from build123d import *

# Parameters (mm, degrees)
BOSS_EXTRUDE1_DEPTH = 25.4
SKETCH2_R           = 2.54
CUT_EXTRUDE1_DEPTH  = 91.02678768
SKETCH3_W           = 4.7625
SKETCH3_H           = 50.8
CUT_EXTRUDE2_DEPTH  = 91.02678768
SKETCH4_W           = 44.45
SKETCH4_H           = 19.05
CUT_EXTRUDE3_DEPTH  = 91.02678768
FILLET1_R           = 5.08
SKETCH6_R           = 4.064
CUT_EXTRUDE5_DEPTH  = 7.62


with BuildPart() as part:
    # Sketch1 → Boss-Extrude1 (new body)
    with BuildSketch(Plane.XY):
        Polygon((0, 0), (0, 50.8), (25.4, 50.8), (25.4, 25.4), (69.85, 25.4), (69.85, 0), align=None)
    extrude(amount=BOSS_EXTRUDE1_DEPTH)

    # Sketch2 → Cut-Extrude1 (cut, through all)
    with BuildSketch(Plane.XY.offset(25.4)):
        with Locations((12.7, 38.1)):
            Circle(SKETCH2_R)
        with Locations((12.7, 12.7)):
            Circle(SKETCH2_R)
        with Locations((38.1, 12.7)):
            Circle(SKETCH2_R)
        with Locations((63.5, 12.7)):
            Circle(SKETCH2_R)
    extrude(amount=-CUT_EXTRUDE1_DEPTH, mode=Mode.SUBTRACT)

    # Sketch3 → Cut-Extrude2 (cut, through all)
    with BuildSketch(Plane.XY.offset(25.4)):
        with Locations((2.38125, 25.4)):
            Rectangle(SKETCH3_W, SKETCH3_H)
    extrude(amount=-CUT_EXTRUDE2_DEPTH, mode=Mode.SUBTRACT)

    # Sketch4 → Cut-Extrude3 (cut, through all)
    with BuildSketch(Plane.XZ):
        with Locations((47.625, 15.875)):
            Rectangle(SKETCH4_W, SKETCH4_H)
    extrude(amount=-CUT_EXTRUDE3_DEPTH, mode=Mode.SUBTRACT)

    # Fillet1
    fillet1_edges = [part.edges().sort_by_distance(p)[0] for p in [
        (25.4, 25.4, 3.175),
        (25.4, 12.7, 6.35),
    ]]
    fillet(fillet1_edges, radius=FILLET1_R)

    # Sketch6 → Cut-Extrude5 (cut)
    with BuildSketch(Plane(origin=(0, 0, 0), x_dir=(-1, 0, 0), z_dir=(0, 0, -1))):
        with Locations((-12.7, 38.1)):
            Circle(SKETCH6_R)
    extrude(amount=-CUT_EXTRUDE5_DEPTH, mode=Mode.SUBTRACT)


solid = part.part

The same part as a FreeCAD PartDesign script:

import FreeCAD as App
import Part
import Sketcher
Q = App.Units.Quantity


def edges_at(feature, points):
    """Names of the edges that pass closest to the given points."""
    edges = feature.Shape.Edges
    near = lambda p: min(range(len(edges)), key=lambda i: edges[i].distToShape(Part.Vertex(*p))[0])
    return sorted({f"Edge{near(p) + 1}" for p in points})


def add_polygon(sketch, points):
    """Adds a closed chain of lines whose ends are joined by coincident constraints."""
    first, n = sketch.GeometryCount, len(points)
    for a, b in zip(points, points[1:] + points[:1]):
        sketch.addGeometry(Part.LineSegment(App.Vector(*a, 0), App.Vector(*b, 0)), False)
    for i in range(n):
        sketch.addConstraint(Sketcher.Constraint("Coincident", first + i, 2, first + (i + 1) % n, 1))

doc = App.newDocument("Part")
body = doc.addObject("PartDesign::Body", "Body")

# Sketch on XY plane
sketch1 = body.newObject("Sketcher::SketchObject", "Sketch")
sketch1.AttachmentSupport = (doc.getObject("XY_Plane"), [""])
sketch1.MapMode = "FlatFace"
add_polygon(sketch1, [(0, 51), (0, 0), (70, 0), (70, 25), (25, 25), (25, 51)])  # lines 0-5
sketch1.addConstraint([
    Sketcher.Constraint("Vertical", 0),
    Sketcher.Constraint("Horizontal", 1),
    Sketcher.Constraint("Vertical", 2),
    Sketcher.Constraint("Horizontal", 3),
    Sketcher.Constraint("Vertical", 4),
    Sketcher.Constraint("Horizontal", 5),
    Sketcher.Constraint("Coincident", 0, 2, -1, 1),
    Sketcher.Constraint("Equal", 5, 2),
    Sketcher.Constraint("Equal", 2, 4),
    Sketcher.Constraint("DistanceX", 5, 2, 5, 1, Q("1 in")),
    Sketcher.Constraint("DistanceX", 1, 1, 1, 2, Q("2.75 in")),
])
pad1 = body.newObject("PartDesign::Pad", "Pad")
pad1.Profile = sketch1
pad1.Length = Q("1 in")

# Sketch on XY plane
sketch2 = body.newObject("Sketcher::SketchObject", "Sketch001")
sketch2.AttachmentSupport = (doc.getObject("XY_Plane"), [""])
sketch2.MapMode = "FlatFace"
sketch2.AttachmentOffset = App.Placement(App.Vector(0, 0, 1 * 25.4), App.Rotation())
sketch2.addGeometry([
    Part.Circle(App.Vector(12.7, 38.1, 0), App.Vector(0, 0, 1), 2.5),
    Part.Circle(App.Vector(12.7, 12.7, 0), App.Vector(0, 0, 1), 2.5),
    Part.Circle(App.Vector(38.1, 12.7, 0), App.Vector(0, 0, 1), 2.5),
    Part.Circle(App.Vector(63.5, 12.7, 0), App.Vector(0, 0, 1), 2.5),
], False)
sketch2.addConstraint([
    Sketcher.Constraint("Equal", 0, 1),
    Sketcher.Constraint("Equal", 1, 2),
    Sketcher.Constraint("Equal", 2, 3),
    Sketcher.Constraint("Horizontal", 1, 3, 2, 3),
    Sketcher.Constraint("Horizontal", 2, 3, 3, 3),
    Sketcher.Constraint("Vertical", 0, 3, 1, 3),
    Sketcher.Constraint("Diameter", 0, Q("0.2 in")),
    Sketcher.Constraint("DistanceY", 1, 3, 0, 3, Q("1 in")),
    Sketcher.Constraint("DistanceX", 1, 3, 2, 3, Q("1 in")),
    Sketcher.Constraint("DistanceX", 2, 3, 3, 3, Q("1 in")),
    Sketcher.Constraint("DistanceX", -1, 1, 0, 3, Q("0.5 in")),
    Sketcher.Constraint("DistanceY", -1, 1, 0, 3, Q("1.5 in")),
])
pocket1 = body.newObject("PartDesign::Pocket", "Pocket")
pocket1.Profile = sketch2
pocket1.Type = "ThroughAll"

# Sketch on XY plane
sketch3 = body.newObject("Sketcher::SketchObject", "Sketch002")
sketch3.AttachmentSupport = (doc.getObject("XY_Plane"), [""])
sketch3.MapMode = "FlatFace"
sketch3.AttachmentOffset = App.Placement(App.Vector(0, 0, 1 * 25.4), App.Rotation())
add_polygon(sketch3, [(0, 50.8), (0, 0), (4.8, 0), (4.8, 50.8)])  # lines 0-3
sketch3.addConstraint([
    Sketcher.Constraint("Vertical", 0),
    Sketcher.Constraint("Horizontal", 1),
    Sketcher.Constraint("Vertical", 2),
    Sketcher.Constraint("Horizontal", 3),
    Sketcher.Constraint("Coincident", 0, 2, -1, 1),
    Sketcher.Constraint("DistanceY", 0, 2, 0, 1, Q("2 in")),
    Sketcher.Constraint("DistanceX", 1, 1, 1, 2, Q("0.1875 in")),
])
pocket2 = body.newObject("PartDesign::Pocket", "Pocket001")
pocket2.Profile = sketch3
pocket2.Type = "ThroughAll"

# Sketch on XZ plane
sketch4 = body.newObject("Sketcher::SketchObject", "Sketch003")
sketch4.AttachmentSupport = (doc.getObject("XZ_Plane"), [""])
sketch4.MapMode = "FlatFace"
add_polygon(sketch4, [(25, 25), (25, 6), (70, 6), (70, 25)])  # lines 0-3
sketch4.addConstraint([
    Sketcher.Constraint("Vertical", 0),
    Sketcher.Constraint("Horizontal", 1),
    Sketcher.Constraint("Vertical", 2),
    Sketcher.Constraint("Horizontal", 3),
    Sketcher.Constraint("DistanceX", -1, 1, 0, 2, Q("1 in")),
    Sketcher.Constraint("DistanceY", -1, 1, 2, 2, Q("1 in")),
    Sketcher.Constraint("DistanceX", 1, 1, 1, 2, Q("1.75 in")),
    Sketcher.Constraint("DistanceY", 0, 2, 0, 1, Q("0.75 in")),
])
pocket3 = body.newObject("PartDesign::Pocket", "Pocket002")
pocket3.Profile = sketch4
pocket3.Type = "ThroughAll"
doc.recompute()

fillet = body.newObject("PartDesign::Fillet", "Fillet")
fillet.Base = (pocket3, edges_at(pocket3, [(25.4, 25.4, 3.175), (25.4, 12.7, 6.35)]))
fillet.Radius = Q("0.2 in")

# Sketch on XY plane
sketch5 = body.newObject("Sketcher::SketchObject", "Sketch004")
sketch5.AttachmentSupport = (doc.getObject("XY_Plane"), [""])
sketch5.MapMode = "FlatFace"
sketch5.addGeometry(Part.Circle(App.Vector(12.7, 38.1, 0), App.Vector(0, 0, 1), 4.1), False)
sketch5.addConstraint([
    Sketcher.Constraint("Diameter", 0, Q("0.32 in")),
    Sketcher.Constraint("DistanceX", -1, 1, 0, 3, Q("0.5 in")),
    Sketcher.Constraint("DistanceY", -1, 1, 0, 3, Q("1.5 in")),
])
pocket4 = body.newObject("PartDesign::Pocket", "Pocket003")
pocket4.Profile = sketch5
pocket4.Length = Q("0.3 in")
pocket4.Reversed = True

doc.recompute()
